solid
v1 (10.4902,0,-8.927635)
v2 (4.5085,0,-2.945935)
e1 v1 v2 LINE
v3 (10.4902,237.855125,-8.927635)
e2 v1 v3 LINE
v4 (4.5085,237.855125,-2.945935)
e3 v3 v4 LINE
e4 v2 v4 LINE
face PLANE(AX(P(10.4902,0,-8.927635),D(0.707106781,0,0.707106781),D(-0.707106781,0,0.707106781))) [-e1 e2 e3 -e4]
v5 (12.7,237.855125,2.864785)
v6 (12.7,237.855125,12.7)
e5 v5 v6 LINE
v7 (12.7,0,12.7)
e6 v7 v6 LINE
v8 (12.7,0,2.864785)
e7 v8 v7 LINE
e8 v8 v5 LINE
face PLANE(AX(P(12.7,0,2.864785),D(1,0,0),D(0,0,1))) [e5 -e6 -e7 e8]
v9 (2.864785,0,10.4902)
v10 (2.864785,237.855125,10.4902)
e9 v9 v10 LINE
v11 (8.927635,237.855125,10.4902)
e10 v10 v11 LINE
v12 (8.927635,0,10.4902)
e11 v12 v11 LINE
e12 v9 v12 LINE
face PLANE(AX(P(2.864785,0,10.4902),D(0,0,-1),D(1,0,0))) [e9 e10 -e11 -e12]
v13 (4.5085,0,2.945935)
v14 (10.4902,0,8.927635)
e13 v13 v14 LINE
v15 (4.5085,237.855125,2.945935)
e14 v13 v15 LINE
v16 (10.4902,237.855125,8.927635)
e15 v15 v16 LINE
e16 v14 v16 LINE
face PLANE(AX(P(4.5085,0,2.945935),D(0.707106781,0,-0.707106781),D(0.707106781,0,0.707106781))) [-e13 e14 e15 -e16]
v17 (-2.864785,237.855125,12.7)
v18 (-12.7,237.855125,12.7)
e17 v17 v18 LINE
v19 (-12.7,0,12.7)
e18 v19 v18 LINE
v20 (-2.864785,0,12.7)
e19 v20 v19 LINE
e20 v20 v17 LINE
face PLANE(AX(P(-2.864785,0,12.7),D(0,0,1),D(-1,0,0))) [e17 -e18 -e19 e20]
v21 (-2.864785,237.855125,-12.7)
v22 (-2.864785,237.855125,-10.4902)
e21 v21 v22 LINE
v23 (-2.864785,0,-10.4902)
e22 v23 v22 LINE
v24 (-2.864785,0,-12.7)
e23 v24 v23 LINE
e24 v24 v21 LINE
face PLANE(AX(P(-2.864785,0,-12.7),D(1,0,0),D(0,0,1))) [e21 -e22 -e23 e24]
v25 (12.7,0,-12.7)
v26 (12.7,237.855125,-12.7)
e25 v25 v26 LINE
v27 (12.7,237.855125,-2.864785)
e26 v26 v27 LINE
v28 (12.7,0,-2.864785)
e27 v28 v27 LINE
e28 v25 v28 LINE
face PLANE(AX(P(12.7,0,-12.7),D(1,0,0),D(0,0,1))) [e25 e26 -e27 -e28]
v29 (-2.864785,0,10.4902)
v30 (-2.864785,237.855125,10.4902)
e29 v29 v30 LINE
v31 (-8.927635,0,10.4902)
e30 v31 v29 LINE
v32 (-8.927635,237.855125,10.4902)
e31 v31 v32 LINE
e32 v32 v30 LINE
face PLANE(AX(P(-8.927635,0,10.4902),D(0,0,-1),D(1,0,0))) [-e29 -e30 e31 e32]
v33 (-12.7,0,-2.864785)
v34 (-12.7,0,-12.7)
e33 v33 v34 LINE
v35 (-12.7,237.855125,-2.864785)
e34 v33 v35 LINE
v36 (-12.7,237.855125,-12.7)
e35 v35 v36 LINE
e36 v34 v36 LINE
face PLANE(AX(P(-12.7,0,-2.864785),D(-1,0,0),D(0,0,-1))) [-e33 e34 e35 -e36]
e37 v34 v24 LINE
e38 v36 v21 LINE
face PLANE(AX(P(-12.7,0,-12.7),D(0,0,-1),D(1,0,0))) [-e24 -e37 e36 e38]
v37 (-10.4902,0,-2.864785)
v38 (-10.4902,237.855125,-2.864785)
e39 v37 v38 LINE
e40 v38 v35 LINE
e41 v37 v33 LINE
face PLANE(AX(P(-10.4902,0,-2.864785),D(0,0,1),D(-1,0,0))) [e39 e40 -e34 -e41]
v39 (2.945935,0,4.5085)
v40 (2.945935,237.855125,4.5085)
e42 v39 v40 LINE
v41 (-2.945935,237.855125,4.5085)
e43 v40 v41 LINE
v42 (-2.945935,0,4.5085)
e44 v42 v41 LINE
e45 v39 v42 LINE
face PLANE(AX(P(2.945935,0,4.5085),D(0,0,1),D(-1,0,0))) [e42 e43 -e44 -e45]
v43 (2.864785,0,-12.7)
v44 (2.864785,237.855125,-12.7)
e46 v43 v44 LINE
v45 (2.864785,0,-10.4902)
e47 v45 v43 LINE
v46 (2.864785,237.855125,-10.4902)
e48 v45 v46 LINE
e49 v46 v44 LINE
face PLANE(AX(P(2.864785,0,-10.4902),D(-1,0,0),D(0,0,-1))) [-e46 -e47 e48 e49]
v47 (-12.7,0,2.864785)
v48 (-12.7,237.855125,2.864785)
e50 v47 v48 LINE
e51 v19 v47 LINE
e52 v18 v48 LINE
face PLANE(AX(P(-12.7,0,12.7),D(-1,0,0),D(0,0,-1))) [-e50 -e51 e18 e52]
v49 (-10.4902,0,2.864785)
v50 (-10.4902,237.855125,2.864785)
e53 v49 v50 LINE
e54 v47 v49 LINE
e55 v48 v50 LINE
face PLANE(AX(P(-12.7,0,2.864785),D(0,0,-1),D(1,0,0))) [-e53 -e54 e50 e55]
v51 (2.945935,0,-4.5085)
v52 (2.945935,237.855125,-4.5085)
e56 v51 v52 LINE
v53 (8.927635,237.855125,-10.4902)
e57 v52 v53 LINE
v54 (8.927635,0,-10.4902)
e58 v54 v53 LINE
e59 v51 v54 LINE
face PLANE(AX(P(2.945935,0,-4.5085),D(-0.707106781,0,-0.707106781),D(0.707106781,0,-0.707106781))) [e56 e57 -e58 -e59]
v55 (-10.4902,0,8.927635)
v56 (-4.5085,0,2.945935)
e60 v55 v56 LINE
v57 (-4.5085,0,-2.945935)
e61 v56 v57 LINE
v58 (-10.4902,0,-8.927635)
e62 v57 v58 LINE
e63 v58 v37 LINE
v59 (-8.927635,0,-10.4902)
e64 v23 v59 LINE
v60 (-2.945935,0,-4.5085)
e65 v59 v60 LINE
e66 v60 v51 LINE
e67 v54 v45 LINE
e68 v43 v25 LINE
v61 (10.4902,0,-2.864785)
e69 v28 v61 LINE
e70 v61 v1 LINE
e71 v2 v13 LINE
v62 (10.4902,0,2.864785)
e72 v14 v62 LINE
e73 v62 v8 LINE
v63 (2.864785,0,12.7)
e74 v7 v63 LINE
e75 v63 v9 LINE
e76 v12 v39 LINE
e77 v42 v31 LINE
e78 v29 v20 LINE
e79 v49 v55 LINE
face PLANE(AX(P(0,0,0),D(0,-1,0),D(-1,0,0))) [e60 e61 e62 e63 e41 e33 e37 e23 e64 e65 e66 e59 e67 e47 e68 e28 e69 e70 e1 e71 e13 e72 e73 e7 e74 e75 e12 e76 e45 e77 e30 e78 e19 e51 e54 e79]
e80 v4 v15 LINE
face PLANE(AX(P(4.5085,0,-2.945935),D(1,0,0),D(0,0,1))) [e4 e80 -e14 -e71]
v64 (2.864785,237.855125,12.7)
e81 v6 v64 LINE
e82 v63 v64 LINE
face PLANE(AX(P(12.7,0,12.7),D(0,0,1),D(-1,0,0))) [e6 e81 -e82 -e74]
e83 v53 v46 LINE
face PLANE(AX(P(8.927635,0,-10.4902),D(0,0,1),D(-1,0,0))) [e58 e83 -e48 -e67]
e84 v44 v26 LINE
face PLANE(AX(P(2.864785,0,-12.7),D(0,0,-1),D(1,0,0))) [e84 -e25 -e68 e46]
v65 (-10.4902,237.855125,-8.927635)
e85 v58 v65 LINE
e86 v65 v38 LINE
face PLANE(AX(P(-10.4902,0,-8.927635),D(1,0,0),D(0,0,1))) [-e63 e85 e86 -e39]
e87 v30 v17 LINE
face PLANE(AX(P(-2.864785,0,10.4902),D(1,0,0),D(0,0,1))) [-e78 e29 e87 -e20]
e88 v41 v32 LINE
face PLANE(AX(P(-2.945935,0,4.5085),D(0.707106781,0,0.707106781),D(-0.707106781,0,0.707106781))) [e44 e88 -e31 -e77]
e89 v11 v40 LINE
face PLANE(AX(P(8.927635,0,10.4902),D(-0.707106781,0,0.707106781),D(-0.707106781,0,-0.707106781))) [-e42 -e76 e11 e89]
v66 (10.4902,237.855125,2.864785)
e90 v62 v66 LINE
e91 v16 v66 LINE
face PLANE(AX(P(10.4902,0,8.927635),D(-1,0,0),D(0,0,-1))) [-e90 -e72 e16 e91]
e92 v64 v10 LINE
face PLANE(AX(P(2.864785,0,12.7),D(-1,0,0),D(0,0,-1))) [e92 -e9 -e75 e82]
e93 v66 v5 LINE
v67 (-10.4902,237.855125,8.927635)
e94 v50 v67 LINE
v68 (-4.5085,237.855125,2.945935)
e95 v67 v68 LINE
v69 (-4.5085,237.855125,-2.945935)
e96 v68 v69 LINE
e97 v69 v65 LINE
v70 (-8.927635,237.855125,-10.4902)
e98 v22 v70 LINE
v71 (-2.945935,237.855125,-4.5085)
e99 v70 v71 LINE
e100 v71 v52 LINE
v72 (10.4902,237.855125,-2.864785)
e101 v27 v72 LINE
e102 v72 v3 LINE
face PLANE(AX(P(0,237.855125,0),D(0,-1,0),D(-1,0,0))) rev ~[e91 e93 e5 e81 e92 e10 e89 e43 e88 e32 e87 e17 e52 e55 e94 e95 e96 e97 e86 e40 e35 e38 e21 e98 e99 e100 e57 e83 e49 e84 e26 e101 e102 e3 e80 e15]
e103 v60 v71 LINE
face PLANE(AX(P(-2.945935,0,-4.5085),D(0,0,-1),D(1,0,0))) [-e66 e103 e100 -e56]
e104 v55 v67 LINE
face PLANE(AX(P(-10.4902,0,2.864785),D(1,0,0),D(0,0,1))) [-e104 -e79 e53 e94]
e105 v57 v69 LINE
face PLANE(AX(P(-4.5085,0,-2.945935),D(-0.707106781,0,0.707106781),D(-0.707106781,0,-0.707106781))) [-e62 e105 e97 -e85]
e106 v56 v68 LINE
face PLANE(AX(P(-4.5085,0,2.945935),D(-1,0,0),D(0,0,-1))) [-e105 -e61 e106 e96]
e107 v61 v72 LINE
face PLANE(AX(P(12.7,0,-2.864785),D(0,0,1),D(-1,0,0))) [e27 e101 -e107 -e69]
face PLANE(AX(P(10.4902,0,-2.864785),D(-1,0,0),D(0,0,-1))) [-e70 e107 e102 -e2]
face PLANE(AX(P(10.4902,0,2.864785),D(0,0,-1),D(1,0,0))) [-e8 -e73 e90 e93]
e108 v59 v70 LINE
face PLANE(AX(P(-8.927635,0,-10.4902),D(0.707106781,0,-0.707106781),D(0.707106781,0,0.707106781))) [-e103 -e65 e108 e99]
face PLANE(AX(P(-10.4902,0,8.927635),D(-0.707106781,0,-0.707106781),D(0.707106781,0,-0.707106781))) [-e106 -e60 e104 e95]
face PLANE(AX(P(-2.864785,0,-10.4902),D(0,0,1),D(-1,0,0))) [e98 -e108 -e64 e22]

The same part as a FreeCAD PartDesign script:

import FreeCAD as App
import Part
import Sketcher
Q = App.Units.Quantity

doc = App.newDocument("Part")
body = doc.addObject("PartDesign::Body", "Body")

sketch1 = body.newObject("Sketcher::SketchObject", "Sketch")
sketch1.AttachmentSupport = (doc.getObject("XZ_Plane"), [""])
sketch1.MapMode = "FlatFace"
sketch1.addGeometry([
    Part.LineSegment(App.Vector(-2.864785, -12.7, 0), App.Vector(-12.7, -12.7, 0)),
    Part.LineSegment(App.Vector(-12.7, -12.7, 0), App.Vector(-12.7, -2.864785, 0)),
    Part.LineSegment(App.Vector(-12.7, -2.864785, 0), App.Vector(-10.4902, -2.864785, 0)),
    Part.LineSegment(App.Vector(-10.4902, -2.864785, 0), App.Vector(-10.4902, -8.927635, 0)),
    Part.LineSegment(App.Vector(-10.4902, -8.927635, 0), App.Vector(-4.5085, -2.945935, 0)),
    Part.LineSegment(App.Vector(-4.5085, -2.945935, 0), App.Vector(-4.5085, 2.945935, 0)),
    Part.LineSegment(App.Vector(-4.5085, 2.945935, 0), App.Vector(-10.4902, 8.927635, 0)),
    Part.LineSegment(App.Vector(-10.4902, 8.927635, 0), App.Vector(-10.4902, 2.864785, 0)),
    Part.LineSegment(App.Vector(-10.4902, 2.864785, 0), App.Vector(-12.7, 2.864785, 0)),
    Part.LineSegment(App.Vector(-12.7, 2.864785, 0), App.Vector(-12.7, 12.7, 0)),
    Part.LineSegment(App.Vector(-12.7, 12.7, 0), App.Vector(-2.864785, 12.7, 0)),
    Part.LineSegment(App.Vector(-2.864785, 12.7, 0), App.Vector(-2.864785, 10.4902, 0)),
    Part.LineSegment(App.Vector(-2.864785, 10.4902, 0), App.Vector(-8.927635, 10.4902, 0)),
    Part.LineSegment(App.Vector(-8.927635, 10.4902, 0), App.Vector(-2.945935, 4.5085, 0)),
    Part.LineSegment(App.Vector(-2.945935, 4.5085, 0), App.Vector(2.945935, 4.5085, 0)),
    Part.LineSegment(App.Vector(2.945935, 4.5085, 0), App.Vector(8.927635, 10.4902, 0)),
    Part.LineSegment(App.Vector(8.927635, 10.4902, 0), App.Vector(2.864785, 10.4902, 0)),
    Part.LineSegment(App.Vector(2.864785, 10.4902, 0), App.Vector(2.864785, 12.7, 0)),
    Part.LineSegment(App.Vector(2.864785, 12.7, 0), App.Vector(12.7, 12.7, 0)),
    Part.LineSegment(App.Vector(12.7, 12.7, 0), App.Vector(12.7, 2.864785, 0)),
    Part.LineSegment(App.Vector(12.7, 2.864785, 0), App.Vector(10.4902, 2.864785, 0)),
    Part.LineSegment(App.Vector(10.4902, 2.864785, 0), App.Vector(10.4902, 8.927635, 0)),
    Part.LineSegment(App.Vector(10.4902, 8.927635, 0), App.Vector(4.5085, 2.945935, 0)),
    Part.LineSegment(App.Vector(4.5085, 2.945935, 0), App.Vector(4.5085, -2.945935, 0)),
    Part.LineSegment(App.Vector(4.5085, -2.945935, 0), App.Vector(10.4902, -8.927635, 0)),
    Part.LineSegment(App.Vector(10.4902, -8.927635, 0), App.Vector(10.4902, -2.864785, 0)),
    Part.LineSegment(App.Vector(10.4902, -2.864785, 0), App.Vector(12.7, -2.864785, 0)),
    Part.LineSegment(App.Vector(12.7, -2.864785, 0), App.Vector(12.7, -12.7, 0)),
    Part.LineSegment(App.Vector(12.7, -12.7, 0), App.Vector(2.864785, -12.7, 0)),
    Part.LineSegment(App.Vector(2.864785, -12.7, 0), App.Vector(2.864785, -10.4902, 0)),
    Part.LineSegment(App.Vector(2.864785, -10.4902, 0), App.Vector(8.927635, -10.4902, 0)),
    Part.LineSegment(App.Vector(8.927635, -10.4902, 0), App.Vector(2.945935, -4.5085, 0)),
    Part.LineSegment(App.Vector(2.945935, -4.5085, 0), App.Vector(-2.945935, -4.5085, 0)),
    Part.LineSegment(App.Vector(-2.945935, -4.5085, 0), App.Vector(-8.927635, -10.4902, 0)),
    Part.LineSegment(App.Vector(-8.927635, -10.4902, 0), App.Vector(-2.864785, -10.4902, 0)),
    Part.LineSegment(App.Vector(-2.864785, -10.4902, 0), App.Vector(-2.864785, -12.7, 0)),
], False)
sketch1.addConstraint([
    Sketcher.Constraint("Coincident", 0, 2, 1, 1),
    Sketcher.Constraint("Coincident", 1, 2, 2, 1),
    Sketcher.Constraint("Coincident", 2, 2, 3, 1),
    Sketcher.Constraint("Coincident", 3, 2, 4, 1),
    Sketcher.Constraint("Coincident", 4, 2, 5, 1),
    Sketcher.Constraint("Coincident", 5, 2, 6, 1),
    Sketcher.Constraint("Coincident", 6, 2, 7, 1),
    Sketcher.Constraint("Coincident", 7, 2, 8, 1),
    Sketcher.Constraint("Coincident", 8, 2, 9, 1),
    Sketcher.Constraint("Coincident", 9, 2, 10, 1),
    Sketcher.Constraint("Coincident", 10, 2, 11, 1),
    Sketcher.Constraint("Coincident", 11, 2, 12, 1),
    Sketcher.Constraint("Coincident", 12, 2, 13, 1),
    Sketcher.Constraint("Coincident", 13, 2, 14, 1),
    Sketcher.Constraint("Coincident", 14, 2, 15, 1),
    Sketcher.Constraint("Coincident", 15, 2, 16, 1),
    Sketcher.Constraint("Coincident", 16, 2, 17, 1),
    Sketcher.Constraint("Coincident", 17, 2, 18, 1),
    Sketcher.Constraint("Coincident", 18, 2, 19, 1),
    Sketcher.Constraint("Coincident", 19, 2, 20, 1),
    Sketcher.Constraint("Coincident", 20, 2, 21, 1),
    Sketcher.Constraint("Coincident", 21, 2, 22, 1),
    Sketcher.Constraint("Coincident", 22, 2, 23, 1),
    Sketcher.Constraint("Coincident", 23, 2, 24, 1),
    Sketcher.Constraint("Coincident", 24, 2, 25, 1),
    Sketcher.Constraint("Coincident", 25, 2, 26, 1),
    Sketcher.Constraint("Coincident", 26, 2, 27, 1),
    Sketcher.Constraint("Coincident", 27, 2, 28, 1),
    Sketcher.Constraint("Coincident", 28, 2, 29, 1),
    Sketcher.Constraint("Coincident", 29, 2, 30, 1),
    Sketcher.Constraint("Coincident", 30, 2, 31, 1),
    Sketcher.Constraint("Coincident", 31, 2, 32, 1),
    Sketcher.Constraint("Coincident", 32, 2, 33, 1),
    Sketcher.Constraint("Coincident", 33, 2, 34, 1),
    Sketcher.Constraint("Coincident", 34, 2, 35, 1),
    Sketcher.Constraint("Coincident", 35, 2, 0, 1),
    Sketcher.Constraint("Horizontal", 0),
    Sketcher.Constraint("Vertical", 1),
    Sketcher.Constraint("Horizontal", 2),
    Sketcher.Constraint("Vertical", 3),
    Sketcher.Constraint("Vertical", 5),
    Sketcher.Constraint("Vertical", 7),
    Sketcher.Constraint("Horizontal", 8),
    Sketcher.Constraint("Vertical", 9),
    Sketcher.Constraint("Horizontal", 10),
    Sketcher.Constraint("Vertical", 11),
    Sketcher.Constraint("Horizontal", 12),
    Sketcher.Constraint("Horizontal", 14),
    Sketcher.Constraint("Horizontal", 16),
    Sketcher.Constraint("Vertical", 17),
    Sketcher.Constraint("Horizontal", 18),
    Sketcher.Constraint("Vertical", 19),
    Sketcher.Constraint("Horizontal", 20),
    Sketcher.Constraint("Vertical", 21),
    Sketcher.Constraint("Vertical", 23),
    Sketcher.Constraint("Vertical", 25),
    Sketcher.Constraint("Horizontal", 26),
    Sketcher.Constraint("Vertical", 27),
    Sketcher.Constraint("Horizontal", 28),
    Sketcher.Constraint("Vertical", 29),
    Sketcher.Constraint("Horizontal", 30),
    Sketcher.Constraint("Horizontal", 32),
    Sketcher.Constraint("Horizontal", 34),
    Sketcher.Constraint("Vertical", 35),
    Sketcher.Constraint("Symmetric", 0, 2, 18, 2, -1, 1),
    Sketcher.Constraint("Symmetric", 2, 2, 20, 2, -1, 1),
    Sketcher.Constraint("Symmetric", 4, 2, 22, 2, -1, 1),
    Sketcher.Constraint("Symmetric", 6, 2, 24, 2, -1, 1),
    Sketcher.Constraint("Symmetric", 8, 2, 26, 2, -1, 1),
    Sketcher.Constraint("Symmetric", 10, 2, 28, 2, -1, 1),
    Sketcher.Constraint("Symmetric", 12, 2, 30, 2, -1, 1),
    Sketcher.Constraint("Symmetric", 13, 2, 31, 2, -1, 1),
    Sketcher.Constraint("Symmetric", 15, 2, 33, 2, -1, 1),
    Sketcher.Constraint("Symmetric", 12, 2, 15, 2, -2),
    Sketcher.Constraint("Symmetric", 10, 2, 17, 2, -2),
    Sketcher.Constraint("Symmetric", 8, 2, 19, 2, -2),
    Sketcher.Constraint("Symmetric", 6, 2, 21, 2, -2),
    Sketcher.Constraint("Perpendicular", 4, 6),
    Sketcher.Constraint("Parallel", 6, 13),
    Sketcher.Constraint("Perpendicular", 13, 15),
    Sketcher.Constraint("Parallel", 15, 22),
    Sketcher.Constraint("Perpendicular", 22, 24),
    Sketcher.Constraint("Perpendicular", 31, 33),
    Sketcher.Constraint("Horizontal", 5, 2, 22, 2),
    Sketcher.Constraint("Vertical", 11, 2, 34, 2),
    Sketcher.Constraint("Equal", 28, 1),
    Sketcher.Constraint("Equal", 34, 3),
    Sketcher.Constraint("Equal", 32, 5),
    Sketcher.Constraint("Equal", 26, 11),
    Sketcher.Constraint("Equal", 6, 13),
    Sketcher.Constraint("DistanceX", 0, 2, -1, 1, Q("0.5 in")),
    Sketcher.Constraint("DistanceX", 2, 1, 2, 2, Q("0.087 in")),
    Sketcher.Constraint("DistanceX", 4, 2, 23, 2, Q("0.355 in")),
    Sketcher.Constraint("DistanceX", 12, 2, 12, 1, Q("6.06285 mm")),
    Sketcher.Constraint("DistanceX", 14, 1, 14, 2, Q("5.891871 mm")),
])
pad1 = body.newObject("PartDesign::Pad", "Pad")
pad1.Profile = sketch1
pad1.Length = 237.855125
pad1.Reversed = True

doc.recompute()
